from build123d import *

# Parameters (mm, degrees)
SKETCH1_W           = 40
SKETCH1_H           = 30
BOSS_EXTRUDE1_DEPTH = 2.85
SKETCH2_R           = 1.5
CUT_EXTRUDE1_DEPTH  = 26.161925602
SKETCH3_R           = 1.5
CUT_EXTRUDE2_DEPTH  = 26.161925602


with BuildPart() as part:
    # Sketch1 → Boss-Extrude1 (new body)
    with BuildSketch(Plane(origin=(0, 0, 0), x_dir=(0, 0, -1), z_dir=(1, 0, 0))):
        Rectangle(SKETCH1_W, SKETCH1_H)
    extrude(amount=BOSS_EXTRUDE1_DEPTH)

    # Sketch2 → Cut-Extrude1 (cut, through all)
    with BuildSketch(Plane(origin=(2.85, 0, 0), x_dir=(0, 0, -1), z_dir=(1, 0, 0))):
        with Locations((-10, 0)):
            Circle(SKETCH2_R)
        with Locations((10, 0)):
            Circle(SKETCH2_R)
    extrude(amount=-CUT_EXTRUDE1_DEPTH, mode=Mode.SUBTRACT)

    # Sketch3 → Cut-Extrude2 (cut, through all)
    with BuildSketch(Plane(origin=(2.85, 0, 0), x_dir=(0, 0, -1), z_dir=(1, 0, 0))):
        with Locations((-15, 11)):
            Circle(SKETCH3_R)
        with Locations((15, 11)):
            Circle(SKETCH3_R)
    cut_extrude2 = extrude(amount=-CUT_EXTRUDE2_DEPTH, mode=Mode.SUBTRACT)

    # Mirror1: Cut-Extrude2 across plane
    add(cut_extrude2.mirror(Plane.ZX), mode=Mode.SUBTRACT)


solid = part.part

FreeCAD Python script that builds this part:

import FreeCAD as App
import Part
import Sketcher
from FreeCAD import Vector
Q = App.Units.Quantity


def add_polygon(sketch, points):
    """Adds a closed chain of lines whose ends are joined by coincident constraints."""
    first, n = sketch.GeometryCount, len(points)
    for a, b in zip(points, points[1:] + points[:1]):
        sketch.addGeometry(Part.LineSegment(App.Vector(*a, 0), App.Vector(*b, 0)), False)
    for i in range(n):
        sketch.addConstraint(Sketcher.Constraint("Coincident", first + i, 2, first + (i + 1) % n, 1))

doc = App.newDocument("Part")
params = doc.addObject("Spreadsheet::Sheet", "Params")
for row, (alias, value) in enumerate([
    ("sketch1_width", "30 mm"),
    ("sketch1_height", "40 mm"),
    ("pad1_length", "2.85 mm"),
    ("sketch2_diameter", "3 mm"),
    ("sketch3_diameter", "3 mm"),
], start=1):
    params.set(f"A{row}", alias)
    params.set(f"B{row}", "=" + value)
    params.setAlias(f"B{row}", alias)

body = doc.addObject("PartDesign::Body", "Body")

# Sketch on YZ plane
sketch1 = body.newObject("Sketcher::SketchObject", "Sketch")
sketch1.AttachmentSupport = (doc.getObject("YZ_Plane"), [""])
sketch1.MapMode = "FlatFace"
add_polygon(sketch1, [(15, 20), (-15, 20), (-15, -20), (15, -20)])  # lines 0-3
sketch1.addConstraint([
    Sketcher.Constraint("Horizontal", 0),
    Sketcher.Constraint("Vertical", 1),
    Sketcher.Constraint("Horizontal", 2),
    Sketcher.Constraint("Vertical", 3),
    Sketcher.Constraint("Symmetric", 0, 2, 2, 2, -1, 1),
    Sketcher.Constraint("DistanceX", 0, 2, 0, 1, Q("30 mm")),
    Sketcher.Constraint("DistanceY", 1, 2, 1, 1, Q("40 mm")),
])
sketch1.setExpression("Constraints[9]", "Params.sketch1_width")
sketch1.setExpression("Constraints[10]", "Params.sketch1_height")
pad1 = body.newObject("PartDesign::Pad", "Pad")
pad1.Profile = sketch1
pad1.setExpression("Length", "Params.pad1_length")

# Sketch on YZ plane
sketch2 = body.newObject("Sketcher::SketchObject", "Sketch001")
sketch2.AttachmentSupport = (doc.getObject("YZ_Plane"), [""])
sketch2.MapMode = "FlatFace"
sketch2.AttachmentOffset = App.Placement(Vector(0, 0, 2.85), App.Rotation())
sketch2.addGeometry([
    Part.Circle(Vector(0, 10, 0), Vector(0, 0, 1), 1.5),
    Part.Circle(Vector(0, -10, 0), Vector(0, 0, 1), 1.5),
], False)
sketch2.addConstraint([
    Sketcher.Constraint("Equal", 0, 1),
    Sketcher.Constraint("Symmetric", 0, 3, 1, 3, -1, 1),
    Sketcher.Constraint("PointOnObject", 0, 3, -2),
    Sketcher.Constraint("Diameter", 0, Q("3 mm")),
    Sketcher.Constraint("DistanceY", -1, 1, 0, 3, Q("10 mm")),
])
sketch2.setExpression("Constraints[3]", "Params.sketch2_diameter")
pocket1 = body.newObject("PartDesign::Pocket", "Pocket")
pocket1.Profile = sketch2
pocket1.Type = "ThroughAll"

# Sketch on YZ plane
sketch3 = body.newObject("Sketcher::SketchObject", "Sketch002")
sketch3.AttachmentSupport = (doc.getObject("YZ_Plane"), [""])
sketch3.MapMode = "FlatFace"
sketch3.AttachmentOffset = App.Placement(Vector(0, 0, 2.85), App.Rotation())
sketch3.addGeometry([
    Part.Circle(Vector(11, 15, 0), Vector(0, 0, 1), 1.5),
    Part.Circle(Vector(11, -15, 0), Vector(0, 0, 1), 1.5),
], False)
sketch3.addConstraint([
    Sketcher.Constraint("Equal", 0, 1),
    Sketcher.Constraint("Symmetric", 0, 3, 1, 3, -1),
    Sketcher.Constraint("Diameter", 0, Q("3 mm")),
    Sketcher.Constraint("DistanceX", -1, 1, 0, 3, Q("11 mm")),
    Sketcher.Constraint("DistanceY", -1, 1, 0, 3, Q("15 mm")),
])
sketch3.setExpression("Constraints[2]", "Params.sketch3_diameter")
pocket2 = body.newObject("PartDesign::Pocket", "Pocket001")
pocket2.Profile = sketch3
pocket2.Type = "ThroughAll"
doc.recompute()

mirrored = body.newObject("PartDesign::Mirrored", "Mirrored")
mirrored.Originals = [pocket2]
mirrored.MirrorPlane = (doc.getObject("XZ_Plane"), [""])
body.Tip = mirrored

doc.recompute()
